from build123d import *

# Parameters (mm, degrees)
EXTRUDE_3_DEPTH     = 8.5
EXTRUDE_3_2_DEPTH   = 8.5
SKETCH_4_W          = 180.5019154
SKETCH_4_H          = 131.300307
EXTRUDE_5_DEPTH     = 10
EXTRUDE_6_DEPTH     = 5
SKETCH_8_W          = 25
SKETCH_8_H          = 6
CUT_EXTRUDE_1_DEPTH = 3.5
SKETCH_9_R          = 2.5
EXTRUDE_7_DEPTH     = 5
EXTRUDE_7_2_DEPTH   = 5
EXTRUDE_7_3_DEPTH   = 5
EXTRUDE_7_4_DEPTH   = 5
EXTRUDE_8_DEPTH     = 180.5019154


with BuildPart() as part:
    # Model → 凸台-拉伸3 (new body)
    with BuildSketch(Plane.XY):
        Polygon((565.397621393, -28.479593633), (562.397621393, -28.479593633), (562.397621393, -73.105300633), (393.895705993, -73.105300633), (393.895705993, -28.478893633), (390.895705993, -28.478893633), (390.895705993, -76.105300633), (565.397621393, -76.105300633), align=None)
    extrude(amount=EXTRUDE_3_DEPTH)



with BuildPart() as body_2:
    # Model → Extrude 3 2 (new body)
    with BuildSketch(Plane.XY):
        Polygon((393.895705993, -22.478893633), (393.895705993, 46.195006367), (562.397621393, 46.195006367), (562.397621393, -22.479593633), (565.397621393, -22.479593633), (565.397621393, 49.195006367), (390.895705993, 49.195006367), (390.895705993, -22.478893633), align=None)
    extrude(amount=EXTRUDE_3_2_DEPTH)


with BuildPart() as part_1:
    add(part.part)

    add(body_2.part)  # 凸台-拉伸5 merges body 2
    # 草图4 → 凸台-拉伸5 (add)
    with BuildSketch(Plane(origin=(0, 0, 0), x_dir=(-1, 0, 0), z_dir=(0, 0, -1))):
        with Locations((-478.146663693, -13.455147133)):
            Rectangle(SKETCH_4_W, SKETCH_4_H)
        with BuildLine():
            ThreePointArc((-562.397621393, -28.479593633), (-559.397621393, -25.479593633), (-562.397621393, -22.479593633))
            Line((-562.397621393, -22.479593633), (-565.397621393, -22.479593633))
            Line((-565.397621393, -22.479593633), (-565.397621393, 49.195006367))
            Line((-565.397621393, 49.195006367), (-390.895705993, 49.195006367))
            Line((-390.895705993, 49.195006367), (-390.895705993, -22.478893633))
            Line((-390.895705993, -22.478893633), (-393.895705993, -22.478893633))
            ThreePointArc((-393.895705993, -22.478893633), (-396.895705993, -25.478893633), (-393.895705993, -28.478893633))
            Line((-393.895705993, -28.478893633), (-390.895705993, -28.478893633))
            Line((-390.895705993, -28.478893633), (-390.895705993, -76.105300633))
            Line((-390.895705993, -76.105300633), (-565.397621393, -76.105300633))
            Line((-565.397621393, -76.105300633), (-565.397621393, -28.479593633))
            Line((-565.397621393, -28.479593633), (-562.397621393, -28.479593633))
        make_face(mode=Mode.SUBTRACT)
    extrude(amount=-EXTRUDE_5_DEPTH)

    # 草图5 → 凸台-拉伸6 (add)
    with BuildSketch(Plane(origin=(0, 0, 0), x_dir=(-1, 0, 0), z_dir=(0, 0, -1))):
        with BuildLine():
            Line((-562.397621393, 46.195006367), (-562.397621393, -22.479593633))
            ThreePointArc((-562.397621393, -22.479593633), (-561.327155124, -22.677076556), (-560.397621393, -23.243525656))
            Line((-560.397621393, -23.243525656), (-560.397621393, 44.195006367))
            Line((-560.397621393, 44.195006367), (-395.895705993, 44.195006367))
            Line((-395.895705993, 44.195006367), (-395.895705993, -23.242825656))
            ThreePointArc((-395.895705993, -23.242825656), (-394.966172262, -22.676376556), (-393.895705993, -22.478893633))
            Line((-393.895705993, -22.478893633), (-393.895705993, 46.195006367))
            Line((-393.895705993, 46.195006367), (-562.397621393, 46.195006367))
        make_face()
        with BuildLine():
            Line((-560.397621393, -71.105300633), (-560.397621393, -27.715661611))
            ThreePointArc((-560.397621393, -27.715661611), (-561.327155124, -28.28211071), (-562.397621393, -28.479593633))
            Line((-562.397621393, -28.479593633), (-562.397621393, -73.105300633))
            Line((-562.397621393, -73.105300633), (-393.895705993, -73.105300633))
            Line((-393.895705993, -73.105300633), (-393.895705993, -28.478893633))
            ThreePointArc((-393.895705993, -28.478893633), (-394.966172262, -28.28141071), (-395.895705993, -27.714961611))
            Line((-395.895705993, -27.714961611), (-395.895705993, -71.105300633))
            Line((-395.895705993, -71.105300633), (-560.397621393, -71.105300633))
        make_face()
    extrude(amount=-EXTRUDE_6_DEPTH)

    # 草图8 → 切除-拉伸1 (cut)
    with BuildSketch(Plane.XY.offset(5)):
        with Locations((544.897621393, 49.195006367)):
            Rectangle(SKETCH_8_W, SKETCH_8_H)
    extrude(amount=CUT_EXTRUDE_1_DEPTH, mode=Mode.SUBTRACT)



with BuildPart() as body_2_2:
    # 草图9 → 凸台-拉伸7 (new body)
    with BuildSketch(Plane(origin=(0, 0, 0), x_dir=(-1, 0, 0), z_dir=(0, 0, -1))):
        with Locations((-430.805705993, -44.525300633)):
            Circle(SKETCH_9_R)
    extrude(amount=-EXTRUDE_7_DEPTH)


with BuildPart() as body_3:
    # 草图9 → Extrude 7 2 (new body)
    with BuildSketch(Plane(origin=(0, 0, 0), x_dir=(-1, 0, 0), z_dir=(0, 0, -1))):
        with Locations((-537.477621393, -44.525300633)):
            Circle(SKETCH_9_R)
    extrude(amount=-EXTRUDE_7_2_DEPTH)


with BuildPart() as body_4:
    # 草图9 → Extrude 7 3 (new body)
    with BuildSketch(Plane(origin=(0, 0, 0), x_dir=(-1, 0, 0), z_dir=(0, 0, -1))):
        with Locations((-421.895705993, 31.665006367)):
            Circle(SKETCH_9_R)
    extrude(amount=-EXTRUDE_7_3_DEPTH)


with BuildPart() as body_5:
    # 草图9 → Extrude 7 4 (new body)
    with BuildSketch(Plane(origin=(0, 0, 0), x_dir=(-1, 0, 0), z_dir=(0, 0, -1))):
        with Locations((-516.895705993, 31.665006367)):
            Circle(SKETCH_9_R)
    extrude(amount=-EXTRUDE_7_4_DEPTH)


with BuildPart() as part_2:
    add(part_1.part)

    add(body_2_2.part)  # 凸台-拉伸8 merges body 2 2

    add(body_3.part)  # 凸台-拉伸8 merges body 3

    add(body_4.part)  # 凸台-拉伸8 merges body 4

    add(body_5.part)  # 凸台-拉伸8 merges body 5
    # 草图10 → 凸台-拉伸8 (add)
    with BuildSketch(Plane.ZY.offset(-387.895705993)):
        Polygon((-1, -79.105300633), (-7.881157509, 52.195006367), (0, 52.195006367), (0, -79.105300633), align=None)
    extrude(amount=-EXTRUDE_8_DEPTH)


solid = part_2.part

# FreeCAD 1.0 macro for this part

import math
import FreeCAD as App
import Part
import Sketcher

V = App.Vector
Q = App.Units.Quantity

doc = App.newDocument("Part")
body = doc.addObject("PartDesign::Body", "Body")

# Sketch on XY plane
sketch1 = body.newObject("Sketcher::SketchObject", "Sketch")
sketch1.AttachmentSupport = (doc.getObject("XY_Plane"), [""])
sketch1.MapMode = "FlatFace"
sketch1.addGeometry([
    Part.LineSegment(V(565.4, -28.5, 0), V(562.4, -28.5, 0)),  # 0
    Part.LineSegment(V(562.4, -28.5, 0), V(562.4, -73.1, 0)),  # 1
    Part.LineSegment(V(562.4, -73.1, 0), V(393.9, -73.1, 0)),  # 2
    Part.LineSegment(V(393.9, -73.1, 0), V(393.9, -28.5, 0)),  # 3
    Part.LineSegment(V(393.9, -28.5, 0), V(390.9, -28.5, 0)),  # 4
    Part.LineSegment(V(390.9, -28.5, 0), V(390.9, -76.1, 0)),  # 5
    Part.LineSegment(V(390.9, -76.1, 0), V(565.4, -76.1, 0)),  # 6
    Part.LineSegment(V(565.4, -76.1, 0), V(565.4, -28.5, 0)),  # 7
], False)
sketch1.addConstraint([
    Sketcher.Constraint("Coincident", 0, 2, 1, 1),
    Sketcher.Constraint("Coincident", 1, 2, 2, 1),
    Sketcher.Constraint("Coincident", 2, 2, 3, 1),
    Sketcher.Constraint("Coincident", 3, 2, 4, 1),
    Sketcher.Constraint("Coincident", 4, 2, 5, 1),
    Sketcher.Constraint("Coincident", 5, 2, 6, 1),
    Sketcher.Constraint("Coincident", 6, 2, 7, 1),
    Sketcher.Constraint("Coincident", 7, 2, 0, 1),
    Sketcher.Constraint("Horizontal", 0),
    Sketcher.Constraint("Vertical", 1),
    Sketcher.Constraint("Horizontal", 2),
    Sketcher.Constraint("Vertical", 3),
    Sketcher.Constraint("Horizontal", 4),
    Sketcher.Constraint("Vertical", 5),
    Sketcher.Constraint("Horizontal", 6),
    Sketcher.Constraint("Vertical", 7),
    Sketcher.Constraint("Equal", 0, 4),
    Sketcher.Constraint("DistanceX", 0, 2, 0, 1, Q("3 mm")),
    Sketcher.Constraint("DistanceY", 5, 2, 2, 2, Q("3 mm")),
    Sketcher.Constraint("DistanceY", 1, 2, -1, 1, Q("73.105301 mm")),
    Sketcher.Constraint("DistanceY", 0, 2, 3, 2, Q("0.0007 mm")),
    Sketcher.Constraint("DistanceX", 2, 2, 2, 1, Q("168.501915 mm")),
    Sketcher.Constraint("DistanceY", 1, 2, 1, 1, Q("44.625707 mm")),
    Sketcher.Constraint("DistanceX", -1, 1, 0, 2, Q("562.397621 mm")),
])
pad1 = body.newObject("PartDesign::Pad", "Pad")
pad1.Profile = sketch1
pad1.Length = 8.5
body2 = doc.addObject("PartDesign::Body", "Body001")

# Sketch on XY plane
sketch2 = body2.newObject("Sketcher::SketchObject", "Sketch001")
sketch2.AttachmentSupport = (doc.getObject("XY_Plane001"), [""])
sketch2.MapMode = "FlatFace"
sketch2.addGeometry([
    Part.LineSegment(V(393.9, -22.5, 0), V(393.9, 46.2, 0)),  # 0
    Part.LineSegment(V(393.9, 46.2, 0), V(562.4, 46.2, 0)),  # 1
    Part.LineSegment(V(562.4, 46.2, 0), V(562.4, -22.5, 0)),  # 2
    Part.LineSegment(V(562.4, -22.5, 0), V(565.4, -22.5, 0)),  # 3
    Part.LineSegment(V(565.4, -22.5, 0), V(565.4, 49.2, 0)),  # 4
    Part.LineSegment(V(565.4, 49.2, 0), V(390.9, 49.2, 0)),  # 5
    Part.LineSegment(V(390.9, 49.2, 0), V(390.9, -22.5, 0)),  # 6
    Part.LineSegment(V(390.9, -22.5, 0), V(393.9, -22.5, 0)),  # 7
], False)
sketch2.addConstraint([
    Sketcher.Constraint("Coincident", 0, 2, 1, 1),
    Sketcher.Constraint("Coincident", 1, 2, 2, 1),
    Sketcher.Constraint("Coincident", 2, 2, 3, 1),
    Sketcher.Constraint("Coincident", 3, 2, 4, 1),
    Sketcher.Constraint("Coincident", 4, 2, 5, 1),
    Sketcher.Constraint("Coincident", 5, 2, 6, 1),
    Sketcher.Constraint("Coincident", 6, 2, 7, 1),
    Sketcher.Constraint("Coincident", 7, 2, 0, 1),
    Sketcher.Constraint("Vertical", 0),
    Sketcher.Constraint("Horizontal", 1),
    Sketcher.Constraint("Vertical", 2),
    Sketcher.Constraint("Horizontal", 3),
    Sketcher.Constraint("Vertical", 4),
    Sketcher.Constraint("Horizontal", 5),
    Sketcher.Constraint("Vertical", 6),
    Sketcher.Constraint("Horizontal", 7),
    Sketcher.Constraint("Equal", 3, 7),
    Sketcher.Constraint("DistanceX", 3, 1, 3, 2, Q("3 mm")),
    Sketcher.Constraint("DistanceY", 1, 2, 4, 2, Q("3 mm")),
    Sketcher.Constraint("DistanceY", 0, 1, 0, 2, Q("68.6739 mm")),
    Sketcher.Constraint("DistanceY", 2, 2, 2, 1, Q("68.6746 mm")),
    Sketcher.Constraint("DistanceX", 1, 1, 1, 2, Q("168.501915 mm")),
    Sketcher.Constraint("DistanceX", -1, 1, 1, 2, Q("562.397621 mm")),
    Sketcher.Constraint("DistanceY", -1, 1, 0, 2, Q("46.195006 mm")),
])
pad2 = body2.newObject("PartDesign::Pad", "Pad001")
pad2.Profile = sketch2
pad2.Length = 8.5
body.AllowCompound = True
doc.recompute()

boolean = body.newObject("PartDesign::Boolean", "Boolean")
boolean.Type = "Fuse"
boolean.addObjects([body2])

# Sketch on XY plane
sketch3 = body.newObject("Sketcher::SketchObject", "Sketch002")
sketch3.AttachmentSupport = (doc.getObject("XY_Plane"), [""])
sketch3.MapMode = "FlatFace"
sketch3.addGeometry([
    Part.LineSegment(V(568.4, 52.2, 0), V(568.4, -79.1, 0)),  # 0
    Part.LineSegment(V(568.4, -79.1, 0), V(387.9, -79.1, 0)),  # 1
    Part.LineSegment(V(387.9, -79.1, 0), V(387.9, 52.2, 0)),  # 2
    Part.LineSegment(V(387.9, 52.2, 0), V(568.4, 52.2, 0)),  # 3
    Part.LineSegment(V(565.4, -28.5, 0), V(562.4, -28.5, 0)),  # 4
    Part.ArcOfCircle(Part.Circle(V(562.4, -25.5, 0), V(0, 0, 1), 3), math.radians(90), math.radians(270)),  # 5
    Part.LineSegment(V(562.4, -22.5, 0), V(565.4, -22.5, 0)),  # 6
    Part.LineSegment(V(565.4, -22.5, 0), V(565.4, 49.2, 0)),  # 7
    Part.LineSegment(V(565.4, 49.2, 0), V(390.9, 49.2, 0)),  # 8
    Part.LineSegment(V(390.9, 49.2, 0), V(390.9, -22.5, 0)),  # 9
    Part.LineSegment(V(390.9, -22.5, 0), V(393.9, -22.5, 0)),  # 10
    Part.ArcOfCircle(Part.Circle(V(393.9, -25.5, 0), V(0, 0, 1), 3), math.radians(-90), math.radians(90)),  # 11
    Part.LineSegment(V(393.9, -28.5, 0), V(390.9, -28.5, 0)),  # 12
    Part.LineSegment(V(390.9, -28.5, 0), V(390.9, -76.1, 0)),  # 13
    Part.LineSegment(V(390.9, -76.1, 0), V(565.4, -76.1, 0)),  # 14
    Part.LineSegment(V(565.4, -76.1, 0), V(565.4, -28.5, 0)),  # 15
], False)
sketch3.addConstraint([
    Sketcher.Constraint("Coincident", 0, 2, 1, 1),
    Sketcher.Constraint("Coincident", 1, 2, 2, 1),
    Sketcher.Constraint("Coincident", 2, 2, 3, 1),
    Sketcher.Constraint("Coincident", 3, 2, 0, 1),
    Sketcher.Constraint("Tangent", 4, 2, 5, 2),
    Sketcher.Constraint("Tangent", 5, 1, 6, 1),
    Sketcher.Constraint("Coincident", 6, 2, 7, 1),
    Sketcher.Constraint("Coincident", 7, 2, 8, 1),
    Sketcher.Constraint("Coincident", 8, 2, 9, 1),
    Sketcher.Constraint("Coincident", 9, 2, 10, 1),
    Sketcher.Constraint("Tangent", 10, 2, 11, 2),
    Sketcher.Constraint("Tangent", 11, 1, 12, 1),
    Sketcher.Constraint("Coincident", 12, 2, 13, 1),
    Sketcher.Constraint("Coincident", 13, 2, 14, 1),
    Sketcher.Constraint("Coincident", 14, 2, 15, 1),
    Sketcher.Constraint("Coincident", 15, 2, 4, 1),
    Sketcher.Constraint("Vertical", 0),
    Sketcher.Constraint("Horizontal", 1),
    Sketcher.Constraint("Vertical", 2),
    Sketcher.Constraint("Horizontal", 3),
    Sketcher.Constraint("Horizontal", 4),
    Sketcher.Constraint("Horizontal", 6),
    Sketcher.Constraint("Vertical", 7),
    Sketcher.Constraint("Horizontal", 8),
    Sketcher.Constraint("Vertical", 9),
    Sketcher.Constraint("Horizontal", 10),
    Sketcher.Constraint("Horizontal", 12),
    Sketcher.Constraint("Vertical", 13),
    Sketcher.Constraint("Horizontal", 14),
    Sketcher.Constraint("Vertical", 15),
    Sketcher.Constraint("Equal", 5, 11),
    Sketcher.Constraint("Vertical", 9, 2, 12, 2),
    Sketcher.Constraint("Vertical", 7, 2, 14, 2),
    Sketcher.Constraint("Equal", 6, 10),
    Sketcher.Constraint("Radius", 5, Q("3 mm")),
    Sketcher.Constraint("DistanceX", 4, 2, 4, 1, Q("3 mm")),
    Sketcher.Constraint("DistanceX", 5, 3, 0, 2, Q("6 mm")),
    Sketcher.Constraint("DistanceX", 1, 2, 11, 3, Q("6 mm")),
    Sketcher.Constraint("DistanceY", 7, 2, 3, 2, Q("3 mm")),
    Sketcher.Constraint("DistanceY", 1, 2, 13, 2, Q("3 mm")),
    Sketcher.Constraint("DistanceY", 7, 1, 7, 2, Q("71.6746 mm")),
    Sketcher.Constraint("DistanceY", 9, 2, 9, 1, Q("71.6739 mm")),
    Sketcher.Constraint("DistanceY", 0, 2, -1, 1, Q("79.105301 mm")),
    Sketcher.Constraint("DistanceX", 1, 2, 1, 1, Q("180.501915 mm")),
    Sketcher.Constraint("DistanceY", 0, 2, 0, 1, Q("131.300307 mm")),
    Sketcher.Constraint("DistanceX", -1, 1, 5, 3, Q("562.397621 mm")),
])
pad3 = body.newObject("PartDesign::Pad", "Pad002")
pad3.Profile = sketch3
pad3.Length = 10

# Sketch on XY plane
sketch4 = body.newObject("Sketcher::SketchObject", "Sketch003")
sketch4.AttachmentSupport = (doc.getObject("XY_Plane"), [""])
sketch4.MapMode = "FlatFace"
sketch4.addGeometry([
    Part.LineSegment(V(562.4, 46.2, 0), V(562.4, -22.5, 0)),  # 0
    Part.ArcOfCircle(Part.Circle(V(562.4, -25.5, 0), V(0, 0, 1), 3), math.radians(90), math.radians(132)),  # 1
    Part.LineSegment(V(560.4, -23.2, 0), V(560.4, 44.2, 0)),  # 2
    Part.LineSegment(V(560.4, 44.2, 0), V(395.9, 44.2, 0)),  # 3
    Part.LineSegment(V(395.9, 44.2, 0), V(395.9, -23.2, 0)),  # 4
    Part.ArcOfCircle(Part.Circle(V(393.9, -25.5, 0), V(0, 0, 1), 3), math.radians(48), math.radians(90)),  # 5
    Part.LineSegment(V(393.9, -22.5, 0), V(393.9, 46.2, 0)),  # 6
    Part.LineSegment(V(393.9, 46.2, 0), V(562.4, 46.2, 0)),  # 7
    Part.LineSegment(V(560.4, -71.1, 0), V(560.4, -27.7, 0)),  # 8
    Part.ArcOfCircle(Part.Circle(V(562.4, -25.5, 0), V(0, 0, 1), 3), math.radians(-132), math.radians(-90)),  # 9
    Part.LineSegment(V(562.4, -28.5, 0), V(562.4, -73.1, 0)),  # 10
    Part.LineSegment(V(562.4, -73.1, 0), V(393.9, -73.1, 0)),  # 11
    Part.LineSegment(V(393.9, -73.1, 0), V(393.9, -28.5, 0)),  # 12
    Part.ArcOfCircle(Part.Circle(V(393.9, -25.5, 0), V(0, 0, 1), 3), math.radians(-90), math.radians(-48)),  # 13
    Part.LineSegment(V(395.9, -27.7, 0), V(395.9, -71.1, 0)),  # 14
    Part.LineSegment(V(395.9, -71.1, 0), V(560.4, -71.1, 0)),  # 15
], False)
sketch4.addConstraint([
    Sketcher.Constraint("Coincident", 0, 2, 1, 1),
    Sketcher.Constraint("Coincident", 1, 2, 2, 1),
    Sketcher.Constraint("Coincident", 2, 2, 3, 1),
    Sketcher.Constraint("Coincident", 3, 2, 4, 1),
    Sketcher.Constraint("Coincident", 4, 2, 5, 1),
    Sketcher.Constraint("Coincident", 5, 2, 6, 1),
    Sketcher.Constraint("Coincident", 6, 2, 7, 1),
    Sketcher.Constraint("Coincident", 7, 2, 0, 1),
    Sketcher.Constraint("Coincident", 8, 2, 9, 1),
    Sketcher.Constraint("Coincident", 9, 2, 10, 1),
    Sketcher.Constraint("Coincident", 10, 2, 11, 1),
    Sketcher.Constraint("Coincident", 11, 2, 12, 1),
    Sketcher.Constraint("Coincident", 12, 2, 13, 1),
    Sketcher.Constraint("Coincident", 13, 2, 14, 1),
    Sketcher.Constraint("Coincident", 14, 2, 15, 1),
    Sketcher.Constraint("Coincident", 15, 2, 8, 1),
    Sketcher.Constraint("Vertical", 0),
    Sketcher.Constraint("Vertical", 2),
    Sketcher.Constraint("Horizontal", 3),
    Sketcher.Constraint("Vertical", 4),
    Sketcher.Constraint("Vertical", 6),
    Sketcher.Constraint("Horizontal", 7),
    Sketcher.Constraint("Vertical", 8),
    Sketcher.Constraint("Vertical", 10),
    Sketcher.Constraint("Horizontal", 11),
    Sketcher.Constraint("Vertical", 12),
    Sketcher.Constraint("Vertical", 14),
    Sketcher.Constraint("Horizontal", 15),
    Sketcher.Constraint("Coincident", 9, 3, 1, 3),
    Sketcher.Constraint("Coincident", 13, 3, 5, 3),
    Sketcher.Constraint("Equal", 1, 5),
    Sketcher.Constraint("Equal", 5, 9),
    Sketcher.Constraint("Equal", 9, 13),
    Sketcher.Constraint("Vertical", 9, 3, 0, 2),
    Sketcher.Constraint("Vertical", 13, 3, 5, 2),
    Sketcher.Constraint("Vertical", 2, 2, 8, 2),
    Sketcher.Constraint("Vertical", 7, 2, 9, 2),
    Sketcher.Constraint("Vertical", 6, 2, 11, 2),
    Sketcher.Constraint("Vertical", 4, 2, 13, 2),
    Sketcher.Constraint("Radius", 1, Q("3 mm")),
    Sketcher.Constraint("DistanceX", 1, 2, 0, 2, Q("2 mm")),
    Sketcher.Constraint("DistanceX", 5, 3, 3, 2, Q("2 mm")),
    Sketcher.Constraint("DistanceY", 3, 2, 6, 2, Q("2 mm")),
    Sketcher.Constraint("DistanceY", 11, 2, 14, 2, Q("2 mm")),
    Sketcher.Constraint("DistanceY", 0, 2, 0, 1, Q("68.6746 mm")),
    Sketcher.Constraint("DistanceY", 6, 1, 6, 2, Q("68.6739 mm")),
    Sketcher.Constraint("DistanceY", 8, 1, 8, 2, Q("43.389639 mm")),
    Sketcher.Constraint("DistanceY", 10, 2, -1, 1, Q("73.105301 mm")),
    Sketcher.Constraint("DistanceX", 3, 2, 3, 1, Q("164.501915 mm")),
    Sketcher.Constraint("DistanceX", -1, 1, 1, 3, Q("562.397621 mm")),
])
pad4 = body.newObject("PartDesign::Pad", "Pad003")
pad4.Profile = sketch4
pad4.Length = 5

# Sketch on XY plane
sketch5 = body.newObject("Sketcher::SketchObject", "Sketch004")
sketch5.AttachmentSupport = (doc.getObject("XY_Plane"), [""])
sketch5.MapMode = "FlatFace"
sketch5.AttachmentOffset = App.Placement(V(0, 0, 5), App.Rotation())
sketch5.addGeometry([
    Part.LineSegment(V(532, 52, 0), V(532, 46, 0)),
    Part.LineSegment(V(532, 46, 0), V(557, 46, 0)),
    Part.LineSegment(V(557, 46, 0), V(557, 52, 0)),
    Part.LineSegment(V(557, 52, 0), V(532, 52, 0)),
], False)
sketch5.addConstraint([
    Sketcher.Constraint("Coincident", 0, 2, 1, 1),
    Sketcher.Constraint("Coincident", 1, 2, 2, 1),
    Sketcher.Constraint("Coincident", 2, 2, 3, 1),
    Sketcher.Constraint("Coincident", 3, 2, 0, 1),
    Sketcher.Constraint("Vertical", 0),
    Sketcher.Constraint("Horizontal", 1),
    Sketcher.Constraint("Vertical", 2),
    Sketcher.Constraint("Horizontal", 3),
    Sketcher.Constraint("DistanceX", 1, 1, 1, 2, Q("25 mm")),
    Sketcher.Constraint("DistanceY", 0, 2, 0, 1, Q("6 mm")),
    Sketcher.Constraint("DistanceX", -1, 1, 0, 2, Q("532.397621 mm")),
    Sketcher.Constraint("DistanceY", -1, 1, 0, 2, Q("46.195006 mm")),
])
pocket1 = body.newObject("PartDesign::Pocket", "Pocket")
pocket1.Profile = sketch5
pocket1.Length = 3.5
pocket1.Reversed = True
body3 = doc.addObject("PartDesign::Body", "Body002")

# Sketch on XY plane
sketch6 = body3.newObject("Sketcher::SketchObject", "Sketch005")
sketch6.AttachmentSupport = (doc.getObject("XY_Plane002"), [""])
sketch6.MapMode = "FlatFace"
sketch6.addGeometry(Part.Circle(V(430.8, -44.5, 0), V(0, 0, 1), 2.5), False)
sketch6.addConstraint([
    Sketcher.Constraint("Diameter", 0, Q("5 mm")),
    Sketcher.Constraint("DistanceY", 0, 3, -1, 1, Q("44.525301 mm")),
    Sketcher.Constraint("DistanceX", -1, 1, 0, 3, Q("430.805706 mm")),
])
pad5 = body3.newObject("PartDesign::Pad", "Pad004")
pad5.Profile = sketch6
pad5.Length = 5
body4 = doc.addObject("PartDesign::Body", "Body003")

# Sketch on XY plane
sketch7 = body4.newObject("Sketcher::SketchObject", "Sketch006")
sketch7.AttachmentSupport = (doc.getObject("XY_Plane003"), [""])
sketch7.MapMode = "FlatFace"
sketch7.addGeometry(Part.Circle(V(537.5, -44.5, 0), V(0, 0, 1), 2.5), False)
sketch7.addConstraint([
    Sketcher.Constraint("Diameter", 0, Q("5 mm")),
    Sketcher.Constraint("DistanceY", 0, 3, -1, 1, Q("44.525301 mm")),
    Sketcher.Constraint("DistanceX", -1, 1, 0, 3, Q("537.477621 mm")),
])
pad6 = body4.newObject("PartDesign::Pad", "Pad005")
pad6.Profile = sketch7
pad6.Length = 5
body5 = doc.addObject("PartDesign::Body", "Body004")

# Sketch on XY plane
sketch8 = body5.newObject("Sketcher::SketchObject", "Sketch007")
sketch8.AttachmentSupport = (doc.getObject("XY_Plane004"), [""])
sketch8.MapMode = "FlatFace"
sketch8.addGeometry(Part.Circle(V(421.9, 31.7, 0), V(0, 0, 1), 2.5), False)
sketch8.addConstraint([
    Sketcher.Constraint("Diameter", 0, Q("5 mm")),
    Sketcher.Constraint("DistanceX", -1, 1, 0, 3, Q("421.895706 mm")),
    Sketcher.Constraint("DistanceY", -1, 1, 0, 3, Q("31.665006 mm")),
])
pad7 = body5.newObject("PartDesign::Pad", "Pad006")
pad7.Profile = sketch8
pad7.Length = 5
body6 = doc.addObject("PartDesign::Body", "Body005")

# Sketch on XY plane
sketch9 = body6.newObject("Sketcher::SketchObject", "Sketch008")
sketch9.AttachmentSupport = (doc.getObject("XY_Plane005"), [""])
sketch9.MapMode = "FlatFace"
sketch9.addGeometry(Part.Circle(V(516.9, 31.7, 0), V(0, 0, 1), 2.5), False)
sketch9.addConstraint([
    Sketcher.Constraint("Diameter", 0, Q("5 mm")),
    Sketcher.Constraint("DistanceX", -1, 1, 0, 3, Q("516.895706 mm")),
    Sketcher.Constraint("DistanceY", -1, 1, 0, 3, Q("31.665006 mm")),
])
pad8 = body6.newObject("PartDesign::Pad", "Pad007")
pad8.Profile = sketch9
pad8.Length = 5
body.AllowCompound = True
doc.recompute()

boolean2 = body.newObject("PartDesign::Boolean", "Boolean001")
boolean2.Type = "Fuse"
boolean2.addObjects([body3])
doc.recompute()

boolean3 = body.newObject("PartDesign::Boolean", "Boolean002")
boolean3.Type = "Fuse"
boolean3.addObjects([body4])
doc.recompute()

boolean4 = body.newObject("PartDesign::Boolean", "Boolean003")
boolean4.Type = "Fuse"
boolean4.addObjects([body5])
doc.recompute()

boolean5 = body.newObject("PartDesign::Boolean", "Boolean004")
boolean5.Type = "Fuse"
boolean5.addObjects([body6])

# Sketch on YZ plane
sketch10 = body.newObject("Sketcher::SketchObject", "Sketch009")
sketch10.AttachmentSupport = (doc.getObject("YZ_Plane"), [""])
sketch10.MapMode = "FlatFace"
sketch10.AttachmentOffset = App.Placement(V(0, 0, 387.895706), App.Rotation())
sketch10.addGeometry([
    Part.LineSegment(V(52.2, -7.9, 0), V(-79.1, -1, 0)),
    Part.LineSegment(V(-79.1, -1, 0), V(-79.1, 0, 0)),
    Part.LineSegment(V(-79.1, 0, 0), V(52.2, 0, 0)),
    Part.LineSegment(V(52.2, 0, 0), V(52.2, -7.9, 0)),
], False)
sketch10.addConstraint([
    Sketcher.Constraint("Coincident", 0, 2, 1, 1),
    Sketcher.Constraint("Coincident", 1, 2, 2, 1),
    Sketcher.Constraint("Coincident", 2, 2, 3, 1),
    Sketcher.Constraint("Coincident", 3, 2, 0, 1),
    Sketcher.Constraint("Vertical", 1),
    Sketcher.Constraint("Horizontal", 2),
    Sketcher.Constraint("Vertical", 3),
    Sketcher.Constraint("PointOnObject", 1, 2, -1),
    Sketcher.Constraint("DistanceY", 1, 1, 1, 2, Q("1 mm")),
    Sketcher.Constraint("Angle", 0, Q("177 deg")),
    Sketcher.Constraint("DistanceX", 0, 2, -1, 1, Q("79.105301 mm")),
    Sketcher.Constraint("DistanceX", 2, 1, 2, 2, Q("131.300307 mm")),
])
pad9 = body.newObject("PartDesign::Pad", "Pad008")
pad9.Profile = sketch10
pad9.Length = 180.501915

doc.recompute()
